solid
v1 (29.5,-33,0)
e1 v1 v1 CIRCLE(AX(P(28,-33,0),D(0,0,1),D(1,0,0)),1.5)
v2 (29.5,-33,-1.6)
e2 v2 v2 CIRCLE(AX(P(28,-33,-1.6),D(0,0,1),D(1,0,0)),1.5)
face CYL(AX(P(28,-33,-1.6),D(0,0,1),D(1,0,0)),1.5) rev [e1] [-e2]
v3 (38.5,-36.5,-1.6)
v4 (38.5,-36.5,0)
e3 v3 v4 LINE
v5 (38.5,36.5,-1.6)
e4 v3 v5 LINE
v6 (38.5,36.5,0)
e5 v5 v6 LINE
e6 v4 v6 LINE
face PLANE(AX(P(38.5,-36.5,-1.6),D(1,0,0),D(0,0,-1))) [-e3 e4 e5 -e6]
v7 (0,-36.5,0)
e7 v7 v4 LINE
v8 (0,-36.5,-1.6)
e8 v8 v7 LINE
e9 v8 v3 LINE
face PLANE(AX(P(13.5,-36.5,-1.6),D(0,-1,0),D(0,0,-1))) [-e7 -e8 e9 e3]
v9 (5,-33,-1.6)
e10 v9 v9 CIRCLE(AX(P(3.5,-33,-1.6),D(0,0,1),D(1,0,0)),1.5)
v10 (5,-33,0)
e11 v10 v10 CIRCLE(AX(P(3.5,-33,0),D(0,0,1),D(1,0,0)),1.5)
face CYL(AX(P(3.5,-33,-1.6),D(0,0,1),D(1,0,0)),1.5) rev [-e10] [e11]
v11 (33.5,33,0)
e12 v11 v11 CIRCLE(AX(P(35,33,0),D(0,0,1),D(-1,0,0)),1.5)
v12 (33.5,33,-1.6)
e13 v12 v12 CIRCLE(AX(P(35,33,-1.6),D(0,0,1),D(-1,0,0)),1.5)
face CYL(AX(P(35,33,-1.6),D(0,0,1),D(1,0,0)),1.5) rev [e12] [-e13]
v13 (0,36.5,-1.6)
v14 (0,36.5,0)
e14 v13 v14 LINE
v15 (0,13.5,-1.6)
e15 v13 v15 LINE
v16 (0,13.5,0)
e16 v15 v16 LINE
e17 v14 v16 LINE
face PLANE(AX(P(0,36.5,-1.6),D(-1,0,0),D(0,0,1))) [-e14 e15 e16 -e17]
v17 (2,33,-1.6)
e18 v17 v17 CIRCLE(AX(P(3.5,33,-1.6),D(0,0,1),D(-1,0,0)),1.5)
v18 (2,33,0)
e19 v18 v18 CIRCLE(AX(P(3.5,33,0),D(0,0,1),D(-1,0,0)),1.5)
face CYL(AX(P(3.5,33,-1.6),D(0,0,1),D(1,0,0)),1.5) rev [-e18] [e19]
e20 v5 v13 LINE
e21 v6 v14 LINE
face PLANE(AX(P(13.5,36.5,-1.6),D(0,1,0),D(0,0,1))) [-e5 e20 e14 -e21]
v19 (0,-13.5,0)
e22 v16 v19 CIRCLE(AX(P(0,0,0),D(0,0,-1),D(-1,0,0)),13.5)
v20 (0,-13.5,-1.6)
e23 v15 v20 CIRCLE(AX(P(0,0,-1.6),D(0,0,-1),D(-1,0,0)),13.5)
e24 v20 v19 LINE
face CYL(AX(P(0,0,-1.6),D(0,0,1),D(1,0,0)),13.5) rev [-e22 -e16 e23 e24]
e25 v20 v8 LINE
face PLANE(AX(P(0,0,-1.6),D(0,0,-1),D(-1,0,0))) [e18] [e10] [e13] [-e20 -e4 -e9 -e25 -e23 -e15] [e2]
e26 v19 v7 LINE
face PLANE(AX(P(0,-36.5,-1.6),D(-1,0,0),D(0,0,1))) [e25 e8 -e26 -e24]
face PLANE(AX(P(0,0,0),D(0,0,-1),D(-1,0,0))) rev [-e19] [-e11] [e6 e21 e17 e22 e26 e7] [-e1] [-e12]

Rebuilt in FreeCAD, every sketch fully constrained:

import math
import FreeCAD as App
import Part
import Sketcher

V = App.Vector

doc = App.newDocument("Part")
params = doc.addObject("Spreadsheet::Sheet", "Params")
for row, (alias, value) in enumerate([
    ("sketch1_radius", "13.5 mm"),
    ("sketch1_height", "73 mm"),
    ("sketch1_width", "38.5 mm"),
    ("pad1_length", "1.6 mm"),
    ("sketch2_diameter", "3 mm"),
], start=1):
    params.set(f"A{row}", alias)
    params.set(f"B{row}", "=" + value)
    params.setAlias(f"B{row}", alias)

body = doc.addObject("PartDesign::Body", "Body")

sketch1 = body.newObject("Sketcher::SketchObject", "Sketch")
sketch1.AttachmentSupport = (doc.getObject("XY_Plane"), [""])
sketch1.MapMode = "FlatFace"
sketch1.addGeometry([
    Part.LineSegment(V(38, -36, 0), V(38, 36, 0)),
    Part.LineSegment(V(38, 36, 0), V(0, 36, 0)),
    Part.LineSegment(V(0, 36, 0), V(0, 14, 0)),
    Part.ArcOfCircle(Part.Circle(V(0, 0, 0), V(0, 0, 1), 14), math.radians(-90), math.radians(90)),
    Part.LineSegment(V(0, -14, 0), V(0, -36, 0)),
    Part.LineSegment(V(0, -36, 0), V(38, -36, 0)),
], False)
sketch1.addConstraint([
    Sketcher.Constraint("Coincident", 0, 2, 1, 1),
    Sketcher.Constraint("Coincident", 1, 2, 2, 1),
    Sketcher.Constraint("Coincident", 2, 2, 3, 2),
    Sketcher.Constraint("Coincident", 3, 1, 4, 1),
    Sketcher.Constraint("Coincident", 4, 2, 5, 1),
    Sketcher.Constraint("Coincident", 5, 2, 0, 1),
    Sketcher.Constraint("Vertical", 0),
    Sketcher.Constraint("Horizontal", 1),
    Sketcher.Constraint("Vertical", 2),
    Sketcher.Constraint("Vertical", 4),
    Sketcher.Constraint("Horizontal", 5),
    Sketcher.Constraint("Coincident", 3, 3, -1, 1),
    Sketcher.Constraint("Symmetric", 1, 2, 4, 2, -1, 1),
    Sketcher.Constraint("PointOnObject", 1, 2, -2),
    Sketcher.Constraint("Radius", 3, 13.5),
    Sketcher.Constraint("DistanceY", 0, 1, 0, 2, 73.0),
    Sketcher.Constraint("DistanceX", 1, 2, 1, 1, 38.5),
])
sketch1.setExpression("Constraints[14]", "Params.sketch1_radius")
sketch1.setExpression("Constraints[15]", "Params.sketch1_height")
sketch1.setExpression("Constraints[16]", "Params.sketch1_width")
pad1 = body.newObject("PartDesign::Pad", "Pad")
pad1.Profile = sketch1
pad1.setExpression("Length", "Params.pad1_length")
pad1.Reversed = True

sketch2 = body.newObject("Sketcher::SketchObject", "Sketch001")
sketch2.AttachmentSupport = (doc.getObject("XY_Plane"), [""])
sketch2.MapMode = "FlatFace"
sketch2.addGeometry([
    Part.Circle(V(35, 33, 0), V(0, 0, 1), 1.5),
    Part.Circle(V(3.5, -33, 0), V(0, 0, 1), 1.5),
    Part.Circle(V(3.5, 33, 0), V(0, 0, 1), 1.5),
    Part.Circle(V(28, -33, 0), V(0, 0, 1), 1.5),
], False)
sketch2.addConstraint([
    Sketcher.Constraint("Equal", 0, 1),
    Sketcher.Constraint("Equal", 1, 2),
    Sketcher.Constraint("Equal", 2, 3),
    Sketcher.Constraint("Symmetric", 1, 3, 2, 3, -1),
    Sketcher.Constraint("Horizontal", 0, 3, 2, 3),
    Sketcher.Constraint("Horizontal", 1, 3, 3, 3),
    Sketcher.Constraint("Diameter", 0, 3.0),
    Sketcher.Constraint("DistanceX", -1, 1, 0, 3, 35.0),
    Sketcher.Constraint("DistanceY", -1, 1, 0, 3, 33.0),
    Sketcher.Constraint("DistanceX", -1, 1, 3, 3, 28.0),
    Sketcher.Constraint("DistanceX", -1, 1, 1, 3, 3.5),
])
sketch2.setExpression("Constraints[6]", "Params.sketch2_diameter")
pocket1 = body.newObject("PartDesign::Pocket", "Pocket")
pocket1.Profile = sketch2
pocket1.Type = "ThroughAll"

doc.recompute()
